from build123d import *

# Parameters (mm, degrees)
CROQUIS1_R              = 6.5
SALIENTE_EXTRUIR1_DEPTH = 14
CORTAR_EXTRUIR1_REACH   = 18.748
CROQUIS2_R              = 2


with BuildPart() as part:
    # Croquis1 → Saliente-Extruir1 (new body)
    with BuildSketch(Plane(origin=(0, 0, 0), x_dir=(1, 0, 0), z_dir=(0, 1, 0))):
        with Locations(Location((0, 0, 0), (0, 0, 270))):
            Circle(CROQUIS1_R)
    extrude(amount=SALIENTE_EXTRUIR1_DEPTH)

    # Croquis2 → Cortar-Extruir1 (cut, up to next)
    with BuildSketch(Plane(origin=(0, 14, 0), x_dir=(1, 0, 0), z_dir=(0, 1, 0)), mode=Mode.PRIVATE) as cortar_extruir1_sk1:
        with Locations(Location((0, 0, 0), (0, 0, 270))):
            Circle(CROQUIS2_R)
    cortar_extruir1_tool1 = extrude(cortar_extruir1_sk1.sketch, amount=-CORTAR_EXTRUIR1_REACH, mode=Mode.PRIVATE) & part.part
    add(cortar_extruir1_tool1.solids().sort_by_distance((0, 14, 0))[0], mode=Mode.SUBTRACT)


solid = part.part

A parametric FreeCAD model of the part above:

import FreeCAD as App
import Part
import Sketcher

V = App.Vector

doc = App.newDocument("Part")
body = doc.addObject("PartDesign::Body", "Body")

sketch1 = doc.addObject("Sketcher::SketchObject", "Sketch")
body.addObject(sketch1)
sketch1.AttachmentSupport = (doc.XZ_Plane, [""])
sketch1.MapMode = "FlatFace"
sketch1.addGeometry(Part.Circle(V(0, 0, 0), V(0, 0, 1), 6), False)
sketch1.addConstraint([
    Sketcher.Constraint("Coincident", 0, 3, -1, 1),
    Sketcher.Constraint("Diameter", 0, 13.0),
])
pad1 = doc.addObject("PartDesign::Pad", "Pad")
body.addObject(pad1)
pad1.Profile = sketch1
pad1.Length = 14
pad1.Reversed = True

sketch2 = doc.addObject("Sketcher::SketchObject", "Sketch001")
body.addObject(sketch2)
sketch2.AttachmentSupport = (doc.XZ_Plane, [""])
sketch2.MapMode = "FlatFace"
sketch2.AttachmentOffset = App.Placement(V(0, 0, -14), App.Rotation())
sketch2.addGeometry(Part.Circle(V(0, 0, 0), V(0, 0, 1), 2), False)
sketch2.addConstraint([
    Sketcher.Constraint("Coincident", 0, 3, -1, 1),
    Sketcher.Constraint("Diameter", 0, 4.0),
])
pocket1 = doc.addObject("PartDesign::Pocket", "Pocket")
body.addObject(pocket1)
pocket1.Profile = sketch2
pocket1.Type = "UpToFirst"
pocket1.Reversed = True

doc.recompute()
